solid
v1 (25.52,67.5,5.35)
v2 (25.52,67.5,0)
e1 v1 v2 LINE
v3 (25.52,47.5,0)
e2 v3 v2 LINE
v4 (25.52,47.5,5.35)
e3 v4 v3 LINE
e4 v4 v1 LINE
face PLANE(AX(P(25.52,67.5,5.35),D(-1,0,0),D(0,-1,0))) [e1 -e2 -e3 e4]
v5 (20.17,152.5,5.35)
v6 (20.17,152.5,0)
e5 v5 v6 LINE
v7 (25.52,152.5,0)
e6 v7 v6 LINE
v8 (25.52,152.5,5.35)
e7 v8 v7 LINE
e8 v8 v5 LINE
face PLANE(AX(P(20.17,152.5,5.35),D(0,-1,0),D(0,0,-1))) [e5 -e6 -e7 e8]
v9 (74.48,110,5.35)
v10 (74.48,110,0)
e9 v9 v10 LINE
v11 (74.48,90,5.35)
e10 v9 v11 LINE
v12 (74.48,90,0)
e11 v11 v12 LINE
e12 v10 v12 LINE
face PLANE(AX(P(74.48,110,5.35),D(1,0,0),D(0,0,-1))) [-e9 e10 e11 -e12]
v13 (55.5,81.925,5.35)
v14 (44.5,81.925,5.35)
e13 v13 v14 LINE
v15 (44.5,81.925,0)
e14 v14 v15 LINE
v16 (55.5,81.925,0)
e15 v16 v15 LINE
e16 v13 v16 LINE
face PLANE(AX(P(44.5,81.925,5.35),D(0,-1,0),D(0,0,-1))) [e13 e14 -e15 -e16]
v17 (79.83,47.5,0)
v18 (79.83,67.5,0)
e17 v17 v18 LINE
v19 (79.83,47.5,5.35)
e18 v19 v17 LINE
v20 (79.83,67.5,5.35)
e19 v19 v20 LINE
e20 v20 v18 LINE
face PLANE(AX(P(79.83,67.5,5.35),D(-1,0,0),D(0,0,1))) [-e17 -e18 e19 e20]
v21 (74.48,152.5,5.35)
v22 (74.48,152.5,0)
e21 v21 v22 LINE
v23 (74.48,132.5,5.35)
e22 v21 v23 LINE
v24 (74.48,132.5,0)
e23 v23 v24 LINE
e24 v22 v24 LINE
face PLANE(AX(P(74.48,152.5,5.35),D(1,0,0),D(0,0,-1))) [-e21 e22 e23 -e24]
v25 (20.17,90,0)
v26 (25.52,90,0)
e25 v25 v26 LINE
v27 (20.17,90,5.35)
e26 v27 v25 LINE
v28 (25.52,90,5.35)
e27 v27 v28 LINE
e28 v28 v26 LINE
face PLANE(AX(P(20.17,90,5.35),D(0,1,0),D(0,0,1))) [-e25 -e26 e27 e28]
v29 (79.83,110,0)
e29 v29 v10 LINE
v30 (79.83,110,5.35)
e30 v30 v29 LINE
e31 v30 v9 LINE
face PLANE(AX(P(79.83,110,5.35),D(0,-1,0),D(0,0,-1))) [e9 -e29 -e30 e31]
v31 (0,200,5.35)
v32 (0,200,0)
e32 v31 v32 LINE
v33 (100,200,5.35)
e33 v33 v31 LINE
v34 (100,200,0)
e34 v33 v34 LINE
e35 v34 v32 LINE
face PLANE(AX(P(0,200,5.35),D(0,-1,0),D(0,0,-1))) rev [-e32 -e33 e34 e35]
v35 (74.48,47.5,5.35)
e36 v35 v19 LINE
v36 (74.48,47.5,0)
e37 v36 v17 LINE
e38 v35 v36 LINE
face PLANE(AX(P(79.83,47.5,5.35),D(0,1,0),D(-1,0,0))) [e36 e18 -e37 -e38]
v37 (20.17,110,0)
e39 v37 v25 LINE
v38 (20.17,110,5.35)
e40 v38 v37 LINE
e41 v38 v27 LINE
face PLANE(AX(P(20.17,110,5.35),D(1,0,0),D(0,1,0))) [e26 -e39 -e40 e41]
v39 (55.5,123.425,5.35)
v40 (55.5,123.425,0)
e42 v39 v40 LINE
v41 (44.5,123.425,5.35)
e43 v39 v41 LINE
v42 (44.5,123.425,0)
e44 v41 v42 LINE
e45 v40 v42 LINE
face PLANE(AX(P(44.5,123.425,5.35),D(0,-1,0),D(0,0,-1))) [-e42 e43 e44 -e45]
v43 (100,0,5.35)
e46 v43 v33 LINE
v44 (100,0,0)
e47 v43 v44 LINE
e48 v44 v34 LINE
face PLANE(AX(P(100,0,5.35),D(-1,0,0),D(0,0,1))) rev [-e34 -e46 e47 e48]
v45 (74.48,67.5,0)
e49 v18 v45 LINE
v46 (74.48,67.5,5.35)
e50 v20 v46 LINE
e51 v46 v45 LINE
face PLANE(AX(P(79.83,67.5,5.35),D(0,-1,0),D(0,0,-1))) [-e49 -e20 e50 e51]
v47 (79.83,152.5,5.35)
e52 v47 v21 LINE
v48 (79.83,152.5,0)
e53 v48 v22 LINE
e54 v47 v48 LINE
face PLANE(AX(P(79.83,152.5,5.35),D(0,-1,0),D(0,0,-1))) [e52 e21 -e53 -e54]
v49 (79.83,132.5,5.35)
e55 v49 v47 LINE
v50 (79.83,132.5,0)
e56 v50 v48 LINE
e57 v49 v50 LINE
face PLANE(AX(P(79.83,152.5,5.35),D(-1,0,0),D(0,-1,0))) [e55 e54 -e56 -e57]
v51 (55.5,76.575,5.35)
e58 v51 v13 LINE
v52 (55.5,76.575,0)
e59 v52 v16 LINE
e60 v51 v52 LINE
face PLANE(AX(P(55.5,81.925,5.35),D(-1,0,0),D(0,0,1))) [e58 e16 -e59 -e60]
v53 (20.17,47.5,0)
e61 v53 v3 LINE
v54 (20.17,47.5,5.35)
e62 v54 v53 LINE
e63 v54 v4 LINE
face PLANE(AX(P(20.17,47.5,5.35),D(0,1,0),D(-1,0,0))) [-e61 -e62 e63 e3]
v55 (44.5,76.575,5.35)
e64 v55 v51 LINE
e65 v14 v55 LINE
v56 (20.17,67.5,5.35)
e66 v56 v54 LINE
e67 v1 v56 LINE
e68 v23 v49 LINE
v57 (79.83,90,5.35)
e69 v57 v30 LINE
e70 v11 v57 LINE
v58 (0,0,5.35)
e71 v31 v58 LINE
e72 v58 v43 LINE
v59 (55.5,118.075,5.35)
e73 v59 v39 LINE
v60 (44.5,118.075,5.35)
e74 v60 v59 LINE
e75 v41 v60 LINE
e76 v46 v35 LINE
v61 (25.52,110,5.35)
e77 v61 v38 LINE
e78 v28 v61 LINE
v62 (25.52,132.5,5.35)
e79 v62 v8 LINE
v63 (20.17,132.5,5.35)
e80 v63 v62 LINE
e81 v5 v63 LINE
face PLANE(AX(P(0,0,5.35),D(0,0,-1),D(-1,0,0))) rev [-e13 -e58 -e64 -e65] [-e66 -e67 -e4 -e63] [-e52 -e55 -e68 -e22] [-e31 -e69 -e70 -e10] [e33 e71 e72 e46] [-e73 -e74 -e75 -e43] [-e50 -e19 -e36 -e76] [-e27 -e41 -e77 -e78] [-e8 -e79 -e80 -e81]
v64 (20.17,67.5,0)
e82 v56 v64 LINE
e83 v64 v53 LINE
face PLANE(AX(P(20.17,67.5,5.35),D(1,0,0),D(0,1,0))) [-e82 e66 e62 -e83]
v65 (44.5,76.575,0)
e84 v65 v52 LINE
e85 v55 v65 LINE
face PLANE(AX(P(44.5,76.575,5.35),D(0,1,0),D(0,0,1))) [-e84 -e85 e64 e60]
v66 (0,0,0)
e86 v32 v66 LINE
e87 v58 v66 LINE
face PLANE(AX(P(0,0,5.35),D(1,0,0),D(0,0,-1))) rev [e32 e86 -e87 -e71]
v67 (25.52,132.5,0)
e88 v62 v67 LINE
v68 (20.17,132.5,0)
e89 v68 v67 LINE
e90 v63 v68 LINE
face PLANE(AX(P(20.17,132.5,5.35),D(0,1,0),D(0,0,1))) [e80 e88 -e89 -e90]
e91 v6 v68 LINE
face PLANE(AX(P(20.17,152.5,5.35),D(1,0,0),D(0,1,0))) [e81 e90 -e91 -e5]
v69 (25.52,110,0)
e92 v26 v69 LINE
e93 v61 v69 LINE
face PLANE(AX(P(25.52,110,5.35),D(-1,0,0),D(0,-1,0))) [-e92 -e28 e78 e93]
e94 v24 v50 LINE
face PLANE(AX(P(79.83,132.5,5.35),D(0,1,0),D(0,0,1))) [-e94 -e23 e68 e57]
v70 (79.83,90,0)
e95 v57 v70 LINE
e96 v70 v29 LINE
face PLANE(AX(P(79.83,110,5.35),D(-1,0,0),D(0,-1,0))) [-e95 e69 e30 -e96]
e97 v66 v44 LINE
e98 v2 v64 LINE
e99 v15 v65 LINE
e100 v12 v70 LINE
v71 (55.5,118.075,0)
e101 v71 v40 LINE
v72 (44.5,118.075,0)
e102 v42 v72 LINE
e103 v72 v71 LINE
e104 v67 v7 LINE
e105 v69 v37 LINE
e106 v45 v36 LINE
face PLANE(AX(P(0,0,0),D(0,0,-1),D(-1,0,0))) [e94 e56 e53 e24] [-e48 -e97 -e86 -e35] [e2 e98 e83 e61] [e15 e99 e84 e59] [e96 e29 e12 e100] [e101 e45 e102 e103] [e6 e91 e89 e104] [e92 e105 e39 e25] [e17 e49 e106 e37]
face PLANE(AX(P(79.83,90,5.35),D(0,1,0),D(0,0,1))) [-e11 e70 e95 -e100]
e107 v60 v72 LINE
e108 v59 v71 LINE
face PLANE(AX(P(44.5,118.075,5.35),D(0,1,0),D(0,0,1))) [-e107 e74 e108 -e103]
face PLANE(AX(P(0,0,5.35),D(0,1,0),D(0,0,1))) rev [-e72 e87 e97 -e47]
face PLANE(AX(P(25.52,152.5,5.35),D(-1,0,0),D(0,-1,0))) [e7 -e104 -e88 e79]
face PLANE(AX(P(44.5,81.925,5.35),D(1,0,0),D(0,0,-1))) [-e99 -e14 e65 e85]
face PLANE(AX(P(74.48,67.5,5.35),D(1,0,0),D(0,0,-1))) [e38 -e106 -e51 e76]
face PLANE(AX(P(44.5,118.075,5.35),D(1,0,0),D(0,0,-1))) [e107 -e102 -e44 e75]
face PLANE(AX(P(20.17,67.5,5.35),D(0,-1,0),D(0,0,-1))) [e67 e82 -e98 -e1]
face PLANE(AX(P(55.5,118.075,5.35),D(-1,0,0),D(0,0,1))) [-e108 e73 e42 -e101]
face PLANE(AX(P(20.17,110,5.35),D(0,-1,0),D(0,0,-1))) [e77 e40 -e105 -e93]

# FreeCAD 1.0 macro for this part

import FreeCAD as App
import Part
import Sketcher

V = App.Vector
Q = App.Units.Quantity


def add_polygon(sketch, points):
    """Adds a closed chain of lines whose ends are joined by coincident constraints."""
    first, n = sketch.GeometryCount, len(points)
    for a, b in zip(points, points[1:] + points[:1]):
        sketch.addGeometry(Part.LineSegment(App.Vector(*a, 0), App.Vector(*b, 0)), False)
    for i in range(n):
        sketch.addConstraint(Sketcher.Constraint("Coincident", first + i, 2, first + (i + 1) % n, 1))

doc = App.newDocument("Part")
body = doc.addObject("PartDesign::Body", "Body")

# Sketch on XY plane
sketch1 = body.newObject("Sketcher::SketchObject", "Sketch")
sketch1.AttachmentSupport = (doc.getObject("XY_Plane"), [""])
sketch1.MapMode = "FlatFace"
add_polygon(sketch1, [(0, 200), (0, 0), (100, 0), (100, 200)])  # lines 0-3
add_polygon(sketch1, [(26, 48), (20, 48), (20, 68), (26, 68)])  # lines 4-7
add_polygon(sketch1, [(80, 48), (74, 48), (74, 68), (80, 68)])  # lines 8-11
add_polygon(sketch1, [(56, 77), (44, 77), (44, 82), (56, 82)])  # lines 12-15
add_polygon(sketch1, [(26, 90), (20, 90), (20, 110), (26, 110)])  # lines 16-19
add_polygon(sketch1, [(26, 132), (20, 132), (20, 152), (26, 152)])  # lines 20-23
add_polygon(sketch1, [(56, 118), (44, 118), (44, 123), (56, 123)])  # lines 24-27
add_polygon(sketch1, [(80, 90), (74, 90), (74, 110), (80, 110)])  # lines 28-31
add_polygon(sketch1, [(80, 132), (74, 132), (74, 152), (80, 152)])  # lines 32-35
sketch1.addConstraint([
    Sketcher.Constraint("Vertical", 0),
    Sketcher.Constraint("Horizontal", 1),
    Sketcher.Constraint("Vertical", 2),
    Sketcher.Constraint("Horizontal", 3),
    Sketcher.Constraint("Horizontal", 4),
    Sketcher.Constraint("Vertical", 5),
    Sketcher.Constraint("Horizontal", 6),
    Sketcher.Constraint("Vertical", 7),
    Sketcher.Constraint("Horizontal", 8),
    Sketcher.Constraint("Vertical", 9),
    Sketcher.Constraint("Horizontal", 10),
    Sketcher.Constraint("Vertical", 11),
    Sketcher.Constraint("Horizontal", 12),
    Sketcher.Constraint("Vertical", 13),
    Sketcher.Constraint("Horizontal", 14),
    Sketcher.Constraint("Vertical", 15),
    Sketcher.Constraint("Horizontal", 16),
    Sketcher.Constraint("Vertical", 17),
    Sketcher.Constraint("Horizontal", 18),
    Sketcher.Constraint("Vertical", 19),
    Sketcher.Constraint("Horizontal", 20),
    Sketcher.Constraint("Vertical", 21),
    Sketcher.Constraint("Horizontal", 22),
    Sketcher.Constraint("Vertical", 23),
    Sketcher.Constraint("Horizontal", 24),
    Sketcher.Constraint("Vertical", 25),
    Sketcher.Constraint("Horizontal", 26),
    Sketcher.Constraint("Vertical", 27),
    Sketcher.Constraint("Horizontal", 28),
    Sketcher.Constraint("Vertical", 29),
    Sketcher.Constraint("Horizontal", 30),
    Sketcher.Constraint("Vertical", 31),
    Sketcher.Constraint("Horizontal", 32),
    Sketcher.Constraint("Vertical", 33),
    Sketcher.Constraint("Horizontal", 34),
    Sketcher.Constraint("Vertical", 35),
    Sketcher.Constraint("Coincident", 0, 2, -1, 1),
    Sketcher.Constraint("Horizontal", 7, 2, 8, 2),
    Sketcher.Constraint("Horizontal", 6, 2, 9, 2),
    Sketcher.Constraint("Horizontal", 19, 2, 28, 2),
    Sketcher.Constraint("Horizontal", 18, 2, 29, 2),
    Sketcher.Constraint("Horizontal", 23, 2, 32, 2),
    Sketcher.Constraint("Horizontal", 22, 2, 33, 2),
    Sketcher.Constraint("Vertical", 5, 2, 16, 2),
    Sketcher.Constraint("Vertical", 7, 2, 18, 2),
    Sketcher.Constraint("Vertical", 17, 2, 20, 2),
    Sketcher.Constraint("Vertical", 19, 2, 22, 2),
    Sketcher.Constraint("Vertical", 13, 2, 24, 2),
    Sketcher.Constraint("Vertical", 15, 2, 26, 2),
    Sketcher.Constraint("Vertical", 9, 2, 28, 2),
    Sketcher.Constraint("Vertical", 11, 2, 30, 2),
    Sketcher.Constraint("Vertical", 29, 2, 32, 2),
    Sketcher.Constraint("Vertical", 31, 2, 34, 2),
    Sketcher.Constraint("Equal", 6, 8),
    Sketcher.Constraint("Equal", 34, 13),
    Sketcher.Constraint("Equal", 11, 17),
    Sketcher.Constraint("Equal", 19, 21),
    Sketcher.Constraint("Equal", 15, 25),
    Sketcher.Constraint("DistanceX", 1, 1, 1, 2, Q("100 mm")),
    Sketcher.Constraint("DistanceX", 12, 2, 12, 1, Q("11 mm")),
    Sketcher.Constraint("DistanceY", 0, 2, 0, 1, Q("200 mm")),
    Sketcher.Constraint("DistanceY", 5, 1, 5, 2, Q("20 mm")),
    Sketcher.Constraint("DistanceY", -1, 1, 16, 2, Q("90 mm")),
    Sketcher.Constraint("DistanceX", 4, 2, 4, 1, Q("5.35 mm")),
    Sketcher.Constraint("DistanceY", -1, 1, 4, 2, Q("47.5 mm")),
    Sketcher.Constraint("DistanceX", -1, 1, 12, 2, Q("44.5 mm")),
    Sketcher.Constraint("DistanceY", -1, 1, 20, 2, Q("132.5 mm")),
    Sketcher.Constraint("DistanceX", -1, 1, 4, 2, Q("20.17 mm")),
    Sketcher.Constraint("DistanceX", -1, 1, 8, 2, Q("74.48 mm")),
    Sketcher.Constraint("DistanceY", -1, 1, 12, 2, Q("76.575 mm")),
    Sketcher.Constraint("DistanceY", -1, 1, 24, 2, Q("118.075 mm")),
])
pad1 = body.newObject("PartDesign::Pad", "Pad")
pad1.Profile = sketch1
pad1.Length = 5.35

doc.recompute()
